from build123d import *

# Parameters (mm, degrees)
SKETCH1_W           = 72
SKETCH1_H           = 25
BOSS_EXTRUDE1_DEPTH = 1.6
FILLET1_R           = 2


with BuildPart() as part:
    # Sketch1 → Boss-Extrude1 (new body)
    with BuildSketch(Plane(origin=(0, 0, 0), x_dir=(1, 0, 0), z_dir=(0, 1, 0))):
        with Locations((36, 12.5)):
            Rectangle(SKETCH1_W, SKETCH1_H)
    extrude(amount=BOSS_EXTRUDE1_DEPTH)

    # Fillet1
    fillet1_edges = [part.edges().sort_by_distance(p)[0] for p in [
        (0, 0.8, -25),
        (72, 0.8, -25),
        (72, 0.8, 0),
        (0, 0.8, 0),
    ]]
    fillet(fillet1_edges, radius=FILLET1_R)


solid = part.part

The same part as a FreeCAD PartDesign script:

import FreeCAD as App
import Part
import Sketcher


def edges_at(feature, points):
    """Names of the edges that pass closest to the given points."""
    edges = feature.Shape.Edges
    near = lambda p: min(range(len(edges)), key=lambda i: edges[i].distToShape(Part.Vertex(*p))[0])
    return sorted({f"Edge{near(p) + 1}" for p in points})

doc = App.newDocument("Part")
body = doc.addObject("PartDesign::Body", "Body")

sketch1 = body.newObject("Sketcher::SketchObject", "Sketch")
sketch1.AttachmentSupport = (doc.getObject("XZ_Plane"), [""])
sketch1.MapMode = "FlatFace"
sketch1.addGeometry([
    Part.LineSegment(App.Vector(0, -25, 0), App.Vector(0, 0, 0)),
    Part.LineSegment(App.Vector(0, 0, 0), App.Vector(72, 0, 0)),
    Part.LineSegment(App.Vector(72, 0, 0), App.Vector(72, -25, 0)),
    Part.LineSegment(App.Vector(72, -25, 0), App.Vector(0, -25, 0)),
], False)
sketch1.addConstraint([
    Sketcher.Constraint("Coincident", 0, 2, 1, 1),
    Sketcher.Constraint("Coincident", 1, 2, 2, 1),
    Sketcher.Constraint("Coincident", 2, 2, 3, 1),
    Sketcher.Constraint("Coincident", 3, 2, 0, 1),
    Sketcher.Constraint("Vertical", 0),
    Sketcher.Constraint("Horizontal", 1),
    Sketcher.Constraint("Vertical", 2),
    Sketcher.Constraint("Horizontal", 3),
    Sketcher.Constraint("Coincident", 0, 2, -1, 1),
    Sketcher.Constraint("DistanceX", 1, 1, 1, 2, 72.0),
    Sketcher.Constraint("DistanceY", 0, 1, 0, 2, 25.0),
])
pad1 = body.newObject("PartDesign::Pad", "Pad")
pad1.Profile = sketch1
pad1.Length = 1.6
pad1.Reversed = True
doc.recompute()

fillet = body.newObject("PartDesign::Fillet", "Fillet")
fillet.Base = (pad1, edges_at(pad1, [
    (0, 0.8, -25),
    (72, 0.8, -25),
    (72, 0.8, 0),
    (0, 0.8, 0),
]))
fillet.Radius = 2

doc.recompute()
